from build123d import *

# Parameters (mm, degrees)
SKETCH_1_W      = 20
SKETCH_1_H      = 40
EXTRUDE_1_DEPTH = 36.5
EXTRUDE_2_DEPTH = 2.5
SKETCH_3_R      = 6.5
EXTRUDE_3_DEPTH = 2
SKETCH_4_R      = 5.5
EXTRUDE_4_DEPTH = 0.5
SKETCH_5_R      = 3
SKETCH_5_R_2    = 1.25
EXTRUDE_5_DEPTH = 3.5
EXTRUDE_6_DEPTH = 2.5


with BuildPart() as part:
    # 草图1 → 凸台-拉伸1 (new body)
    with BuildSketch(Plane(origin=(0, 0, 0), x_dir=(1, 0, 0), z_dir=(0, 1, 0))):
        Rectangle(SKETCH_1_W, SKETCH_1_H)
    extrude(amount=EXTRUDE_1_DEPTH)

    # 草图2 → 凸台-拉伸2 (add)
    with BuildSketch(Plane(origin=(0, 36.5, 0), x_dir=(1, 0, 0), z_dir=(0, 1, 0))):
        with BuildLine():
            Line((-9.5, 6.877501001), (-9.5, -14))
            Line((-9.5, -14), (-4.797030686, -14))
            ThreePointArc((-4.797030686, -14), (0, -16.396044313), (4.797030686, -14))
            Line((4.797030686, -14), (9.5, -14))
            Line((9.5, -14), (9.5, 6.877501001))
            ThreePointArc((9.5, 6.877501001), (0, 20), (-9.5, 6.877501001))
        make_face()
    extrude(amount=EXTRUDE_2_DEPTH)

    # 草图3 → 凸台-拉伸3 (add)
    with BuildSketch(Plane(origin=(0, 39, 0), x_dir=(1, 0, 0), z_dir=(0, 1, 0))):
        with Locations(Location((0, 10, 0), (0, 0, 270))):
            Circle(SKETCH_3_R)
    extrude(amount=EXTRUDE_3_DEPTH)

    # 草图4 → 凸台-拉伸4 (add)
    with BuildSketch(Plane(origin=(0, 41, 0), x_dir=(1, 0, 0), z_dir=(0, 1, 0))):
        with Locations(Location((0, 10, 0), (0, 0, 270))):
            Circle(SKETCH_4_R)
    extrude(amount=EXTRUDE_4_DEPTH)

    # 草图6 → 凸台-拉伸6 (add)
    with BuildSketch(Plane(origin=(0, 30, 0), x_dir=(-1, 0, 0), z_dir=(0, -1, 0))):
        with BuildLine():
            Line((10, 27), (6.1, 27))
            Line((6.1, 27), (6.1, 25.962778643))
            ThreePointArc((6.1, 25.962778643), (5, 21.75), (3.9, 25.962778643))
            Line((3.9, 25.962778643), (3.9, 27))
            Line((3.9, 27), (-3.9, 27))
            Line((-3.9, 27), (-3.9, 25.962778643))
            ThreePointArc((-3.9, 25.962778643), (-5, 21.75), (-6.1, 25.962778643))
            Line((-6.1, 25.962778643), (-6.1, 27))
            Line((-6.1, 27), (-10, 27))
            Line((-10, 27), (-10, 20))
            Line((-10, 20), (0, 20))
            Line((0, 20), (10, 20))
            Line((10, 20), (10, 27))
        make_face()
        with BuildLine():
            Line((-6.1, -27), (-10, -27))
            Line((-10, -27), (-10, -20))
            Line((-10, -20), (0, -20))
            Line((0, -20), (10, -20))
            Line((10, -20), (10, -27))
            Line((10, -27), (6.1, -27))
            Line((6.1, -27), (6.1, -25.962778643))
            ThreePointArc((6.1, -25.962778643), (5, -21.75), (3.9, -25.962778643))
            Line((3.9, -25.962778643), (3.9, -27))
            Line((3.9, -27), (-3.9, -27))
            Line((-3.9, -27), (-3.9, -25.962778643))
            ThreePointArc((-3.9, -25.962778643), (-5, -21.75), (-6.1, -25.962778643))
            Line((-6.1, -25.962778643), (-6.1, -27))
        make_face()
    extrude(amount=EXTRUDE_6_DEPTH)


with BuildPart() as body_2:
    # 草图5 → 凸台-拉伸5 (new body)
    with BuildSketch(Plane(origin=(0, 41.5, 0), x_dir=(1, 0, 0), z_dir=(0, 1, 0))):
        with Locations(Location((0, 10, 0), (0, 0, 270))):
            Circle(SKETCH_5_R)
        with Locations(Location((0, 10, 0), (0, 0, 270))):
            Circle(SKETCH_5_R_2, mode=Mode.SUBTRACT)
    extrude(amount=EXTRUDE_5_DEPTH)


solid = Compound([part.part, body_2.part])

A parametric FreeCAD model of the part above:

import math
import FreeCAD as App
import Part
import Sketcher

doc = App.newDocument("Part")
params = doc.addObject("Spreadsheet::Sheet", "Params")
for row, (alias, value) in enumerate([
    ("sketch1_width", "20 mm"),
    ("sketch1_height", "40 mm"),
    ("pad1_length", "36.5 mm"),
    ("sketch2_radius", "6 mm"),
    ("sketch2_radius2", "10 mm"),
    ("pad2_length", "2.5 mm"),
    ("sketch3_diameter", "13 mm"),
    ("pad3_length", "2 mm"),
    ("sketch4_diameter", "11 mm"),
    ("pad4_length", "0.5 mm"),
    ("sketch5_width", "20 mm"),
    ("sketch5_height", "7 mm"),
    ("sketch5_radius", "2.25 mm"),
    ("sketch5_width2", "3.9 mm"),
    ("sketch5_width3", "7.8 mm"),
    ("pad5_length", "2.5 mm"),
    ("sketch6_diameter", "6 mm"),
    ("sketch6_diameter2", "2.5 mm"),
    ("pad6_length", "3.5 mm"),
], start=1):
    params.set(f"A{row}", alias)
    params.set(f"B{row}", "=" + value)
    params.setAlias(f"B{row}", alias)

body = doc.addObject("PartDesign::Body", "Body")

# Sketch on XZ plane
sketch1 = body.newObject("Sketcher::SketchObject", "Sketch")
sketch1.AttachmentSupport = (doc.getObject("XZ_Plane"), [""])
sketch1.MapMode = "FlatFace"
sketch1.addGeometry([
    Part.LineSegment(App.Vector(-10, -20, 0), App.Vector(-10, 20, 0)),
    Part.LineSegment(App.Vector(-10, 20, 0), App.Vector(10, 20, 0)),
    Part.LineSegment(App.Vector(10, 20, 0), App.Vector(10, -20, 0)),
    Part.LineSegment(App.Vector(10, -20, 0), App.Vector(-10, -20, 0)),
], False)
sketch1.addConstraint([
    Sketcher.Constraint("Coincident", 0, 2, 1, 1),
    Sketcher.Constraint("Coincident", 1, 2, 2, 1),
    Sketcher.Constraint("Coincident", 2, 2, 3, 1),
    Sketcher.Constraint("Coincident", 3, 2, 0, 1),
    Sketcher.Constraint("Vertical", 0),
    Sketcher.Constraint("Horizontal", 1),
    Sketcher.Constraint("Vertical", 2),
    Sketcher.Constraint("Horizontal", 3),
    Sketcher.Constraint("Symmetric", 0, 2, 2, 2, -1, 1),
    Sketcher.Constraint("DistanceX", 1, 1, 1, 2, 20.0),
    Sketcher.Constraint("DistanceY", 0, 1, 0, 2, 40.0),
])
sketch1.setExpression("Constraints[9]", "Params.sketch1_width")
sketch1.setExpression("Constraints[10]", "Params.sketch1_height")
pad1 = body.newObject("PartDesign::Pad", "Pad")
pad1.Profile = sketch1
pad1.setExpression("Length", "Params.pad1_length")
pad1.Reversed = True

# Sketch on XZ plane
sketch2 = body.newObject("Sketcher::SketchObject", "Sketch001")
sketch2.AttachmentSupport = (doc.getObject("XZ_Plane"), [""])
sketch2.MapMode = "FlatFace"
sketch2.AttachmentOffset = App.Placement(App.Vector(0, 0, -36.5), App.Rotation())
sketch2.addGeometry([
    Part.LineSegment(App.Vector(-9.5, -6.877501, 0), App.Vector(-9.5, 14, 0)),  # 0
    Part.LineSegment(App.Vector(-9.5, 14, 0), App.Vector(-4.797031, 14, 0)),  # 1
    Part.ArcOfCircle(Part.Circle(App.Vector(0, 10.396044, 0), App.Vector(0, 0, 1), 6), math.radians(36.91713), math.radians(143.08287)),  # 2
    Part.LineSegment(App.Vector(4.797031, 14, 0), App.Vector(9.5, 14, 0)),  # 3
    Part.LineSegment(App.Vector(9.5, 14, 0), App.Vector(9.5, -6.877501, 0)),  # 4
    Part.ArcOfCircle(Part.Circle(App.Vector(0, -10, 0), App.Vector(0, 0, 1), 10), math.radians(161.805128), math.radians(378.194872)),  # 5
], False)
sketch2.addConstraint([
    Sketcher.Constraint("Coincident", 0, 2, 1, 1),
    Sketcher.Constraint("Coincident", 1, 2, 2, 2),
    Sketcher.Constraint("Coincident", 2, 1, 3, 1),
    Sketcher.Constraint("Coincident", 3, 2, 4, 1),
    Sketcher.Constraint("Coincident", 4, 2, 5, 2),
    Sketcher.Constraint("Coincident", 5, 1, 0, 1),
    Sketcher.Constraint("Vertical", 0),
    Sketcher.Constraint("Horizontal", 1),
    Sketcher.Constraint("Horizontal", 3),
    Sketcher.Constraint("Vertical", 4),
    Sketcher.Constraint("Symmetric", 1, 2, 2, 1, -2),
    Sketcher.Constraint("Symmetric", 4, 2, 5, 1, -2),
    Sketcher.Constraint("Radius", 2, 6.0),
    Sketcher.Constraint("Radius", 5, 10.0),
    Sketcher.Constraint("DistanceY", 5, 3, -1, 1, 10.0),
    Sketcher.Constraint("DistanceY", -1, 1, 0, 2, 14.0),
    Sketcher.Constraint("DistanceX", 0, 2, 3, 2, 19.0),
    Sketcher.Constraint("DistanceX", 1, 1, 1, 2, 4.702969),
])
sketch2.setExpression("Constraints[12]", "Params.sketch2_radius")
sketch2.setExpression("Constraints[13]", "Params.sketch2_radius2")
pad2 = body.newObject("PartDesign::Pad", "Pad001")
pad2.Profile = sketch2
pad2.setExpression("Length", "Params.pad2_length")
pad2.Reversed = True

# Sketch on XZ plane
sketch3 = body.newObject("Sketcher::SketchObject", "Sketch002")
sketch3.AttachmentSupport = (doc.getObject("XZ_Plane"), [""])
sketch3.MapMode = "FlatFace"
sketch3.AttachmentOffset = App.Placement(App.Vector(0, 0, -39), App.Rotation())
sketch3.addGeometry(Part.Circle(App.Vector(0, -10, 0), App.Vector(0, 0, 1), 6.5), False)
sketch3.addConstraint([
    Sketcher.Constraint("PointOnObject", 0, 3, -2),
    Sketcher.Constraint("Diameter", 0, 13.0),
    Sketcher.Constraint("DistanceY", 0, 3, -1, 1, 10.0),
])
sketch3.setExpression("Constraints[1]", "Params.sketch3_diameter")
pad3 = body.newObject("PartDesign::Pad", "Pad002")
pad3.Profile = sketch3
pad3.setExpression("Length", "Params.pad3_length")
pad3.Reversed = True

# Sketch on XZ plane
sketch4 = body.newObject("Sketcher::SketchObject", "Sketch003")
sketch4.AttachmentSupport = (doc.getObject("XZ_Plane"), [""])
sketch4.MapMode = "FlatFace"
sketch4.AttachmentOffset = App.Placement(App.Vector(0, 0, -41), App.Rotation())
sketch4.addGeometry(Part.Circle(App.Vector(0, -10, 0), App.Vector(0, 0, 1), 5.5), False)
sketch4.addConstraint([
    Sketcher.Constraint("PointOnObject", 0, 3, -2),
    Sketcher.Constraint("Diameter", 0, 11.0),
    Sketcher.Constraint("DistanceY", 0, 3, -1, 1, 10.0),
])
sketch4.setExpression("Constraints[1]", "Params.sketch4_diameter")
pad4 = body.newObject("PartDesign::Pad", "Pad003")
pad4.Profile = sketch4
pad4.setExpression("Length", "Params.pad4_length")
pad4.Reversed = True

# Sketch on XZ plane
sketch5 = body.newObject("Sketcher::SketchObject", "Sketch004")
sketch5.AttachmentSupport = (doc.getObject("XZ_Plane"), [""])
sketch5.MapMode = "FlatFace"
sketch5.AttachmentOffset = App.Placement(App.Vector(0, 0, -30), App.Rotation())
sketch5.addGeometry([
    Part.LineSegment(App.Vector(-10, -27, 0), App.Vector(-6.1, -27, 0)),  # 0
    Part.LineSegment(App.Vector(-6.1, -27, 0), App.Vector(-6.1, -25.962779, 0)),  # 1
    Part.ArcOfCircle(Part.Circle(App.Vector(-5, -24, 0), App.Vector(0, 0, 1), 2.25), math.radians(-60.732422), math.radians(240.732422)),  # 2
    Part.LineSegment(App.Vector(-3.9, -25.962779, 0), App.Vector(-3.9, -27, 0)),  # 3
    Part.LineSegment(App.Vector(-3.9, -27, 0), App.Vector(3.9, -27, 0)),  # 4
    Part.LineSegment(App.Vector(3.9, -27, 0), App.Vector(3.9, -25.962779, 0)),  # 5
    Part.ArcOfCircle(Part.Circle(App.Vector(5, -24, 0), App.Vector(0, 0, 1), 2.25), math.radians(-60.732422), math.radians(240.732422)),  # 6
    Part.LineSegment(App.Vector(6.1, -25.962779, 0), App.Vector(6.1, -27, 0)),  # 7
    Part.LineSegment(App.Vector(6.1, -27, 0), App.Vector(10, -27, 0)),  # 8
    Part.LineSegment(App.Vector(10, -27, 0), App.Vector(10, -20, 0)),  # 9
    Part.LineSegment(App.Vector(10, -20, 0), App.Vector(-10, -20, 0)),  # 10
    Part.LineSegment(App.Vector(-10, -20, 0), App.Vector(-10, -27, 0)),  # 11
    Part.LineSegment(App.Vector(10, 27, 0), App.Vector(6.1, 27, 0)),  # 12
    Part.LineSegment(App.Vector(6.1, 27, 0), App.Vector(6.1, 25.962779, 0)),  # 13
    Part.ArcOfCircle(Part.Circle(App.Vector(5, 24, 0), App.Vector(0, 0, 1), 2.25), math.radians(119.267578), math.radians(420.732422)),  # 14
    Part.LineSegment(App.Vector(3.9, 25.962779, 0), App.Vector(3.9, 27, 0)),  # 15
    Part.LineSegment(App.Vector(3.9, 27, 0), App.Vector(-3.9, 27, 0)),  # 16
    Part.LineSegment(App.Vector(-3.9, 27, 0), App.Vector(-3.9, 25.962779, 0)),  # 17
    Part.ArcOfCircle(Part.Circle(App.Vector(-5, 24, 0), App.Vector(0, 0, 1), 2.25), math.radians(119.267578), math.radians(420.732422)),  # 18
    Part.LineSegment(App.Vector(-6.1, 25.962779, 0), App.Vector(-6.1, 27, 0)),  # 19
    Part.LineSegment(App.Vector(-6.1, 27, 0), App.Vector(-10, 27, 0)),  # 20
    Part.LineSegment(App.Vector(-10, 27, 0), App.Vector(-10, 20, 0)),  # 21
    Part.LineSegment(App.Vector(-10, 20, 0), App.Vector(10, 20, 0)),  # 22
    Part.LineSegment(App.Vector(10, 20, 0), App.Vector(10, 27, 0)),  # 23
], False)
sketch5.addConstraint([
    Sketcher.Constraint("Coincident", 0, 2, 1, 1),
    Sketcher.Constraint("Coincident", 1, 2, 2, 2),
    Sketcher.Constraint("Coincident", 2, 1, 3, 1),
    Sketcher.Constraint("Coincident", 3, 2, 4, 1),
    Sketcher.Constraint("Coincident", 4, 2, 5, 1),
    Sketcher.Constraint("Coincident", 5, 2, 6, 2),
    Sketcher.Constraint("Coincident", 6, 1, 7, 1),
    Sketcher.Constraint("Coincident", 7, 2, 8, 1),
    Sketcher.Constraint("Coincident", 8, 2, 9, 1),
    Sketcher.Constraint("Coincident", 9, 2, 10, 1),
    Sketcher.Constraint("Coincident", 10, 2, 11, 1),
    Sketcher.Constraint("Coincident", 11, 2, 0, 1),
    Sketcher.Constraint("Coincident", 12, 2, 13, 1),
    Sketcher.Constraint("Coincident", 13, 2, 14, 2),
    Sketcher.Constraint("Coincident", 14, 1, 15, 1),
    Sketcher.Constraint("Coincident", 15, 2, 16, 1),
    Sketcher.Constraint("Coincident", 16, 2, 17, 1),
    Sketcher.Constraint("Coincident", 17, 2, 18, 2),
    Sketcher.Constraint("Coincident", 18, 1, 19, 1),
    Sketcher.Constraint("Coincident", 19, 2, 20, 1),
    Sketcher.Constraint("Coincident", 20, 2, 21, 1),
    Sketcher.Constraint("Coincident", 21, 2, 22, 1),
    Sketcher.Constraint("Coincident", 22, 2, 23, 1),
    Sketcher.Constraint("Coincident", 23, 2, 12, 1),
    Sketcher.Constraint("Horizontal", 0),
    Sketcher.Constraint("Vertical", 1),
    Sketcher.Constraint("Vertical", 3),
    Sketcher.Constraint("Horizontal", 4),
    Sketcher.Constraint("Vertical", 5),
    Sketcher.Constraint("Vertical", 7),
    Sketcher.Constraint("Horizontal", 8),
    Sketcher.Constraint("Vertical", 9),
    Sketcher.Constraint("Horizontal", 10),
    Sketcher.Constraint("Vertical", 11),
    Sketcher.Constraint("Horizontal", 12),
    Sketcher.Constraint("Vertical", 13),
    Sketcher.Constraint("Vertical", 15),
    Sketcher.Constraint("Horizontal", 16),
    Sketcher.Constraint("Vertical", 17),
    Sketcher.Constraint("Vertical", 19),
    Sketcher.Constraint("Horizontal", 20),
    Sketcher.Constraint("Vertical", 21),
    Sketcher.Constraint("Horizontal", 22),
    Sketcher.Constraint("Vertical", 23),
    Sketcher.Constraint("Equal", 2, 6),
    Sketcher.Constraint("Equal", 6, 14),
    Sketcher.Constraint("Equal", 14, 18),
    Sketcher.Constraint("Symmetric", 2, 3, 14, 3, -1, 1),
    Sketcher.Constraint("Symmetric", 6, 3, 18, 3, -1, 1),
    Sketcher.Constraint("Symmetric", 0, 2, 12, 2, -1, 1),
    Sketcher.Constraint("Symmetric", 3, 2, 15, 2, -1, 1),
    Sketcher.Constraint("Symmetric", 7, 2, 19, 2, -1, 1),
    Sketcher.Constraint("Symmetric", 9, 2, 21, 2, -1, 1),
    Sketcher.Constraint("Symmetric", 2, 3, 6, 3, -2),
    Sketcher.Constraint("Symmetric", 0, 2, 7, 2, -2),
    Sketcher.Constraint("Horizontal", 1, 2, 2, 1),
    Sketcher.Constraint("Horizontal", 0, 2, 3, 2),
    Sketcher.Constraint("Horizontal", 2, 1, 5, 2),
    Sketcher.Constraint("Horizontal", 14, 1, 17, 2),
    Sketcher.Constraint("Vertical", 11, 2, 20, 2),
    Sketcher.Constraint("Vertical", 9, 2, 22, 2),
    Sketcher.Constraint("DistanceX", 10, 2, 10, 1, 20.0),
    Sketcher.Constraint("DistanceY", 9, 1, 9, 2, 7.0),
    Sketcher.Constraint("Radius", 2, 2.25),
    Sketcher.Constraint("DistanceX", 0, 1, 0, 2, 3.9),
    Sketcher.Constraint("DistanceX", 4, 1, 4, 2, 7.8),
    Sketcher.Constraint("DistanceY", 2, 3, -1, 1, 24.0),
    Sketcher.Constraint("DistanceY", 0, 2, -1, 1, 27.0),
])
sketch5.setExpression("Constraints[61]", "Params.sketch5_width")
sketch5.setExpression("Constraints[62]", "Params.sketch5_height")
sketch5.setExpression("Constraints[63]", "Params.sketch5_radius")
sketch5.setExpression("Constraints[64]", "Params.sketch5_width2")
sketch5.setExpression("Constraints[65]", "Params.sketch5_width3")
pad5 = body.newObject("PartDesign::Pad", "Pad004")
pad5.Profile = sketch5
pad5.setExpression("Length", "Params.pad5_length")
body2 = doc.addObject("PartDesign::Body", "Body001")

# Sketch on XZ plane
sketch6 = body2.newObject("Sketcher::SketchObject", "Sketch005")
sketch6.AttachmentSupport = (doc.getObject("XZ_Plane001"), [""])
sketch6.MapMode = "FlatFace"
sketch6.AttachmentOffset = App.Placement(App.Vector(0, 0, -41.5), App.Rotation())
sketch6.addGeometry([
    Part.Circle(App.Vector(0, -10, 0), App.Vector(0, 0, 1), 3),
    Part.Circle(App.Vector(0, -10, 0), App.Vector(0, 0, 1), 1.25),
], False)
sketch6.addConstraint([
    Sketcher.Constraint("Coincident", 1, 3, 0, 3),
    Sketcher.Constraint("PointOnObject", 0, 3, -2),
    Sketcher.Constraint("Diameter", 0, 6.0),
    Sketcher.Constraint("Diameter", 1, 2.5),
    Sketcher.Constraint("DistanceY", 0, 3, -1, 1, 10.0),
])
sketch6.setExpression("Constraints[2]", "Params.sketch6_diameter")
sketch6.setExpression("Constraints[3]", "Params.sketch6_diameter2")
pad6 = body2.newObject("PartDesign::Pad", "Pad005")
pad6.Profile = sketch6
pad6.setExpression("Length", "Params.pad6_length")
pad6.Reversed = True

doc.recompute()
